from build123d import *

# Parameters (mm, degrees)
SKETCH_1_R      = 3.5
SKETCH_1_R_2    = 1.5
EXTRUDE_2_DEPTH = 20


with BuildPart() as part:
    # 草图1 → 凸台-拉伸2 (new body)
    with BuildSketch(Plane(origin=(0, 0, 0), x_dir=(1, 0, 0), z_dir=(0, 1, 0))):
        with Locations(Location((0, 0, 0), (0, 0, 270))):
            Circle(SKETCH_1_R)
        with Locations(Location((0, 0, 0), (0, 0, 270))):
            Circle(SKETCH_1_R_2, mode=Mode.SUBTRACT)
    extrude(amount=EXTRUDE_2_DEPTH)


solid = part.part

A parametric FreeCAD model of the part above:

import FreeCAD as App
import Part
import Sketcher

V = App.Vector
Q = App.Units.Quantity

doc = App.newDocument("Part")
body = doc.addObject("PartDesign::Body", "Body")

sketch1 = body.newObject("Sketcher::SketchObject", "Sketch")
sketch1.AttachmentSupport = (doc.getObject("XZ_Plane"), [""])
sketch1.MapMode = "FlatFace"
sketch1.addGeometry(Part.Circle(V(0, 0, 0), V(0, 0, 1), 3.5), False)
sketch1.addGeometry(Part.Circle(V(0, 0, 0), V(0, 0, 1), 1.5), False)
sketch1.addConstraint(Sketcher.Constraint("Coincident", 0, 3, -1, 1))
sketch1.addConstraint(Sketcher.Constraint("Coincident", 1, 3, -1, 1))
sketch1.addConstraint(Sketcher.Constraint("Diameter", 0, Q("7 mm")))
sketch1.addConstraint(Sketcher.Constraint("Diameter", 1, Q("3 mm")))
pad1 = body.newObject("PartDesign::Pad", "Pad")
pad1.Profile = sketch1
pad1.Length = 20
pad1.Reversed = True

doc.recompute()
